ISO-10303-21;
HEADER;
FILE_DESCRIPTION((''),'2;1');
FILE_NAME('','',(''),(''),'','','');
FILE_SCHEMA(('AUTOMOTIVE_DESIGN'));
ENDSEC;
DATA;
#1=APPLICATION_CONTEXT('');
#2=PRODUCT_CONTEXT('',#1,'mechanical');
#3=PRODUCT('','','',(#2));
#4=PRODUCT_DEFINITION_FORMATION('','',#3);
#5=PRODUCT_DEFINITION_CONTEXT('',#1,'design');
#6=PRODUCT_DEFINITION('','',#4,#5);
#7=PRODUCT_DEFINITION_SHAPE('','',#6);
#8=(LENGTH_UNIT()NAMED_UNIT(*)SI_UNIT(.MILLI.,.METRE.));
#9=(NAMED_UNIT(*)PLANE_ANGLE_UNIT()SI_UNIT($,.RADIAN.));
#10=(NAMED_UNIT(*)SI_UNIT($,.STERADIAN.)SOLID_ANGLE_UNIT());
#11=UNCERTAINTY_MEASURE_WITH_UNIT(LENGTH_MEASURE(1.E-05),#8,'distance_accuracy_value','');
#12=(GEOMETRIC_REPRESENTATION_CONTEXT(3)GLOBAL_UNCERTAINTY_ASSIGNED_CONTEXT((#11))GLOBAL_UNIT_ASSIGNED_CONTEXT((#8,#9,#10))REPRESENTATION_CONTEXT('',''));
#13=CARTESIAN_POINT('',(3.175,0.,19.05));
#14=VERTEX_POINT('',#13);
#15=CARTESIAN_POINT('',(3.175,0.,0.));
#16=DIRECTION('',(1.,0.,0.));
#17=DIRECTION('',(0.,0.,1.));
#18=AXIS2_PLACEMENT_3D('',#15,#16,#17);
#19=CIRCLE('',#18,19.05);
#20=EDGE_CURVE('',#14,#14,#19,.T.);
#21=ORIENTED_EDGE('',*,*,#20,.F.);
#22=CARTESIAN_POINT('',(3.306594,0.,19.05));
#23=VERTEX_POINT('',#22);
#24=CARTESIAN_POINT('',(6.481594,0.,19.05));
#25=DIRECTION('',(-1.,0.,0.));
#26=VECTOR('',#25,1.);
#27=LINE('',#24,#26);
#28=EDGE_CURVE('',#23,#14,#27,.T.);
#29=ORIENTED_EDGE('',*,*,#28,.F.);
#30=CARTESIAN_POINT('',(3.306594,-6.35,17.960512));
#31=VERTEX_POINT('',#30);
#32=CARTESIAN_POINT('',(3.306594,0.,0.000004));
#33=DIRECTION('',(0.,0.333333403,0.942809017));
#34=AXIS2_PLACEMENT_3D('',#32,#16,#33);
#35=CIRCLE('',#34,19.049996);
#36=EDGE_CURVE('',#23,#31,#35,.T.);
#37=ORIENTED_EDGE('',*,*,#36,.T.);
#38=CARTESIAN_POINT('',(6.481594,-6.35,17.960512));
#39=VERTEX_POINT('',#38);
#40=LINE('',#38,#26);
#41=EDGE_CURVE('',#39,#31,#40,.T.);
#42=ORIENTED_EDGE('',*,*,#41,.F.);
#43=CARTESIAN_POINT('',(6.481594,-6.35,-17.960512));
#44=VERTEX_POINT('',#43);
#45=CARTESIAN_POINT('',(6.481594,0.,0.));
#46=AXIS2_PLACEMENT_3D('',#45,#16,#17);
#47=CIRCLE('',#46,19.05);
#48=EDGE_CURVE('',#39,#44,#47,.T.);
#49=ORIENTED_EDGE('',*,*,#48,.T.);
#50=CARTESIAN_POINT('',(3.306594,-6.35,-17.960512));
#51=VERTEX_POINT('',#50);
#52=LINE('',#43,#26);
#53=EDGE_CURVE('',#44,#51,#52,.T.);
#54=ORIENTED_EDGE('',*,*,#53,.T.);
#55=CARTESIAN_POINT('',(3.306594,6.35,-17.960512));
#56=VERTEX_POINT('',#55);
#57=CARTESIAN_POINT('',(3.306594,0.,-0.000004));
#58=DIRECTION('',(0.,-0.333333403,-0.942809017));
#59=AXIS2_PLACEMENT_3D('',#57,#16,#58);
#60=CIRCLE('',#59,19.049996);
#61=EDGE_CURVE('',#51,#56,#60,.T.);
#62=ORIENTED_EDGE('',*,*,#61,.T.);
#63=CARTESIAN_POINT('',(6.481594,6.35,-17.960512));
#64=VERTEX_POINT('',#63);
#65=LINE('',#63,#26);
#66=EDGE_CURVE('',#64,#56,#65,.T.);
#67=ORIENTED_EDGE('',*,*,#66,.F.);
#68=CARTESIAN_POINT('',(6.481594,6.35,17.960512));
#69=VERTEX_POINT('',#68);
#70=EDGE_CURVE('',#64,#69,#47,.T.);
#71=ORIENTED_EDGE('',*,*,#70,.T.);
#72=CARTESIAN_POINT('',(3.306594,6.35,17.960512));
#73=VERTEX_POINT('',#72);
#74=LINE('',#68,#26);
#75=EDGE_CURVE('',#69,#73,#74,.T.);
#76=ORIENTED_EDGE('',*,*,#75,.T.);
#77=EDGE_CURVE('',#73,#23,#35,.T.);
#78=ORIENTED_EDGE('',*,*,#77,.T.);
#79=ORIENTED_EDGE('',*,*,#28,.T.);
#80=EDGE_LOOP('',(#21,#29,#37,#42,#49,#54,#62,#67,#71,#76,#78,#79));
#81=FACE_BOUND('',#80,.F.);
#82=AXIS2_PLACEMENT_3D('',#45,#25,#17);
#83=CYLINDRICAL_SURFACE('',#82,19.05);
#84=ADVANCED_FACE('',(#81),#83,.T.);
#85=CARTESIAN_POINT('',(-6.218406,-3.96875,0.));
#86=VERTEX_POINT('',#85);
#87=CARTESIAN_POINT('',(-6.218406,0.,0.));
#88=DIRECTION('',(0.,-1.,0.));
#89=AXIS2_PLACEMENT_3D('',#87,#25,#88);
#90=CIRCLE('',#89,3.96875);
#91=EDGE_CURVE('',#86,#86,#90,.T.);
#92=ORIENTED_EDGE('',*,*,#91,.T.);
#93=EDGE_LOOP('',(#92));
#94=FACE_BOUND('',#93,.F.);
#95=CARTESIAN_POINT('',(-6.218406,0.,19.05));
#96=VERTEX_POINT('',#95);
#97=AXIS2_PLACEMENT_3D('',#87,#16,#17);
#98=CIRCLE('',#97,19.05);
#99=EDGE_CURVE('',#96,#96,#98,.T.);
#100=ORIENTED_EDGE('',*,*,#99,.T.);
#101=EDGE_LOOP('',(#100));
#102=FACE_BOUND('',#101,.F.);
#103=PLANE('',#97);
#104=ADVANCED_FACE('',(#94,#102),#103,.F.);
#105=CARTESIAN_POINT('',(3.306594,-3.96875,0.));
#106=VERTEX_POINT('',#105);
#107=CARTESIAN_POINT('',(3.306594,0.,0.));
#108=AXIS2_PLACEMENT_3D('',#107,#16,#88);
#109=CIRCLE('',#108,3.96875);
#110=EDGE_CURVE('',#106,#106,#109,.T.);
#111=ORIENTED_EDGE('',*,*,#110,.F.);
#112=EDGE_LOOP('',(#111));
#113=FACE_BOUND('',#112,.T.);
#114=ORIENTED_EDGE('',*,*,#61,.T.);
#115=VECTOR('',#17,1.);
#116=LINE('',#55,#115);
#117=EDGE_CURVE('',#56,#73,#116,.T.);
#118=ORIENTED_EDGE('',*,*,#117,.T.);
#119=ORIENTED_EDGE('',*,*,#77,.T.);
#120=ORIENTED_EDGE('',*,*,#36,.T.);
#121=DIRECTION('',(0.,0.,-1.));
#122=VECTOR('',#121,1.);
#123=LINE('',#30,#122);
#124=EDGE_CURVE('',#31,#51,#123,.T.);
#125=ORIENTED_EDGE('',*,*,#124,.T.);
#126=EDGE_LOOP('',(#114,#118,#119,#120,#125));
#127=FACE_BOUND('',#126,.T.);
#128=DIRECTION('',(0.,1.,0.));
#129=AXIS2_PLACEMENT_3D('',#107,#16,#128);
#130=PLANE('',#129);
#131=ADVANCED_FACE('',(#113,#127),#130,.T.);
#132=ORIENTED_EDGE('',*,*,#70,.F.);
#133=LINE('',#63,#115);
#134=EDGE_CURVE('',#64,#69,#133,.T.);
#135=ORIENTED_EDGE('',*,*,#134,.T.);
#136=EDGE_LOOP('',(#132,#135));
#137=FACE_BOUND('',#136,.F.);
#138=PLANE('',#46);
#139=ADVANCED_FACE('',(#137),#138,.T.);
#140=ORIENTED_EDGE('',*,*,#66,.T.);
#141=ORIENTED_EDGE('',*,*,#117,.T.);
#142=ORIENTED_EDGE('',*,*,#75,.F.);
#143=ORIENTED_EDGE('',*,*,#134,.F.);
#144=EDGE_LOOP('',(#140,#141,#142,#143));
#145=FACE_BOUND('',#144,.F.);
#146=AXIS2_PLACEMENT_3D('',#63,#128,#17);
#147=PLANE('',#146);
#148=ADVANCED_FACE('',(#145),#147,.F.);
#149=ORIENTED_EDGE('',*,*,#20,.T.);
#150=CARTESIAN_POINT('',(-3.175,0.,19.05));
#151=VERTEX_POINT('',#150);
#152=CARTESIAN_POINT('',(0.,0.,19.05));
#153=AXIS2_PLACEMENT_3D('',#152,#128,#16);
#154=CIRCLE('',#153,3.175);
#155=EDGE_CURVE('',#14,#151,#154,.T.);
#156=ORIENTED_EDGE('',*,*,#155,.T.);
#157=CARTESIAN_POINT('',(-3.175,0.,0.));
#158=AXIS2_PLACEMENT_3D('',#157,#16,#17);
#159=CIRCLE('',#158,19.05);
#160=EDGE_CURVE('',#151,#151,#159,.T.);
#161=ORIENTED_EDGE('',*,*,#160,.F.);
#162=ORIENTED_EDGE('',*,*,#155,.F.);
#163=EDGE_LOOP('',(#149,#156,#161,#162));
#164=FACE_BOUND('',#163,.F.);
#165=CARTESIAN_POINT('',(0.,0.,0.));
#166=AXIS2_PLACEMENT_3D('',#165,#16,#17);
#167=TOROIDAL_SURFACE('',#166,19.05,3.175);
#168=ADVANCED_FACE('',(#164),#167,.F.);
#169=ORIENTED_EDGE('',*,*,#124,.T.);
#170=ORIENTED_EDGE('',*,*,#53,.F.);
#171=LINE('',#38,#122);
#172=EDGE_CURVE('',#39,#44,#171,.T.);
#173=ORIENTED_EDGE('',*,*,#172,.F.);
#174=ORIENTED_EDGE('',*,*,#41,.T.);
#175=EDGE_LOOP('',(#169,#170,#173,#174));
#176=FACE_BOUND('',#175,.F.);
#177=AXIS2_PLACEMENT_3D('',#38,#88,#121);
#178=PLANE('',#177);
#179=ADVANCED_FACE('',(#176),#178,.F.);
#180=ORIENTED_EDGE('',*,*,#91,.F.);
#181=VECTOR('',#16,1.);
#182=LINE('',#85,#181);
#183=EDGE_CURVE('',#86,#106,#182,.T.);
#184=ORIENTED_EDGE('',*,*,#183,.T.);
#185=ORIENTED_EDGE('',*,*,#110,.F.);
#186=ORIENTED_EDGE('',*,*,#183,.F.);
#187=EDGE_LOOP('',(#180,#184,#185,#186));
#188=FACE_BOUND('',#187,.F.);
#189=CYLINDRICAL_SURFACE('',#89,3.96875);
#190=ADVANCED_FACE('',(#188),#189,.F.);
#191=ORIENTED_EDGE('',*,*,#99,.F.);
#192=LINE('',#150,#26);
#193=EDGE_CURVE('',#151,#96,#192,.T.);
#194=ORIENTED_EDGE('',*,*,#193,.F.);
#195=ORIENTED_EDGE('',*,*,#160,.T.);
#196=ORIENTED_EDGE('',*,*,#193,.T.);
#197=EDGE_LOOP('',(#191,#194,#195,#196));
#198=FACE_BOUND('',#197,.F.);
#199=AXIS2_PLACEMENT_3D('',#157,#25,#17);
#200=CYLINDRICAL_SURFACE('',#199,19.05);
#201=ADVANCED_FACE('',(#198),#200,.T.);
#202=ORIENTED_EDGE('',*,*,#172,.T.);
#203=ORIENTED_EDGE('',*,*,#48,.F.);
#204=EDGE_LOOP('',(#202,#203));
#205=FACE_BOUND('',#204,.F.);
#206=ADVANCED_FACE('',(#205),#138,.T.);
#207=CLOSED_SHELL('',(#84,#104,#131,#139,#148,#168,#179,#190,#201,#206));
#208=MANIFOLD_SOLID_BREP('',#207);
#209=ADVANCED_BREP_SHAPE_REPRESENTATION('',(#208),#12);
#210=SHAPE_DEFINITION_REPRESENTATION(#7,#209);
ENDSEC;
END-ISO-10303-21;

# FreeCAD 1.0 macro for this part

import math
import FreeCAD as App
import Part
import Sketcher
from FreeCAD import Vector
Q = App.Units.Quantity

doc = App.newDocument("Part")
body = doc.addObject("PartDesign::Body", "Body")

# Sketch on XZ plane
sketch1 = body.newObject("Sketcher::SketchObject", "Sketch")
sketch1.AttachmentSupport = (doc.getObject("XZ_Plane"), [""])
sketch1.MapMode = "FlatFace"
sketch1.addGeometry([
    Part.LineSegment(Vector(-6.2, 19.1, 0), Vector(-6.2, 0, 0)),  # 0
    Part.LineSegment(Vector(-6.2, 0, 0), Vector(6.5, 0, 0)),  # 1
    Part.LineSegment(Vector(6.5, 0, 0), Vector(6.5, 19.1, 0)),  # 2
    Part.LineSegment(Vector(6.5, 19.1, 0), Vector(3.2, 19.1, 0)),  # 3
    Part.ArcOfCircle(Part.Circle(Vector(0, 19.1, 0), Vector(0, 0, 1), 3.2), math.radians(180), math.radians(360)),  # 4
    Part.LineSegment(Vector(-3.2, 19.1, 0), Vector(-6.2, 19.1, 0)),  # 5
], False)
sketch1.addConstraint([
    Sketcher.Constraint("Coincident", 0, 2, 1, 1),
    Sketcher.Constraint("Coincident", 1, 2, 2, 1),
    Sketcher.Constraint("Coincident", 2, 2, 3, 1),
    Sketcher.Constraint("Coincident", 3, 2, 4, 2),
    Sketcher.Constraint("Coincident", 4, 1, 5, 1),
    Sketcher.Constraint("Coincident", 5, 2, 0, 1),
    Sketcher.Constraint("Vertical", 0),
    Sketcher.Constraint("Horizontal", 1),
    Sketcher.Constraint("Vertical", 2),
    Sketcher.Constraint("Horizontal", 3),
    Sketcher.Constraint("Horizontal", 5),
    Sketcher.Constraint("Symmetric", 3, 2, 4, 1, -2),
    Sketcher.Constraint("PointOnObject", 0, 2, -1),
    Sketcher.Constraint("Horizontal", 4, 3, 2, 2),
    Sketcher.Constraint("DistanceX", 1, 1, 1, 2, Q("0.5 in")),
    Sketcher.Constraint("Radius", 4, Q("0.125 in")),
    Sketcher.Constraint("DistanceY", 0, 2, 0, 1, Q("0.75 in")),
    Sketcher.Constraint("DistanceX", 3, 2, 3, 1, Q("3.306594 mm")),
])
revolution = body.newObject("PartDesign::Revolution", "Revolution")
revolution.Profile = sketch1
revolution.ReferenceAxis = (sketch1, ["H_Axis"])
revolution.Angle = 360

# Sketch on YZ plane
sketch2 = body.newObject("Sketcher::SketchObject", "Sketch001")
sketch2.AttachmentSupport = (doc.getObject("YZ_Plane"), [""])
sketch2.MapMode = "FlatFace"
sketch2.AttachmentOffset = App.Placement(Vector(0, 0, 6.481594), App.Rotation())
sketch2.addGeometry([
    Part.ArcOfCircle(Part.Circle(Vector(0, 0, 0), Vector(0, 0, 1), 19), math.radians(71), math.radians(109)),  # 0
    Part.LineSegment(Vector(-6.3, 18, 0), Vector(-6.3, -18, 0)),  # 1
    Part.ArcOfCircle(Part.Circle(Vector(0, 0, 0), Vector(0, 0, 1), 19), math.radians(-109), math.radians(-71)),  # 2
    Part.LineSegment(Vector(6.3, -18, 0), Vector(6.3, 18, 0)),  # 3
    Part.Circle(Vector(0, 0, 0), Vector(0, 0, 1), 4),  # 4
], False)
sketch2.addConstraint([
    Sketcher.Constraint("Coincident", 0, 2, 1, 1),
    Sketcher.Constraint("Coincident", 1, 2, 2, 1),
    Sketcher.Constraint("Coincident", 2, 2, 3, 1),
    Sketcher.Constraint("Coincident", 3, 2, 0, 1),
    Sketcher.Constraint("Vertical", 1),
    Sketcher.Constraint("Vertical", 3),
    Sketcher.Constraint("Coincident", 0, 3, -1, 1),
    Sketcher.Constraint("Coincident", 2, 3, -1, 1),
    Sketcher.Constraint("Coincident", 4, 3, -1, 1),
    Sketcher.Constraint("Equal", 0, 2),
    Sketcher.Constraint("Horizontal", 1, 2, 2, 2),
    Sketcher.Constraint("Radius", 0, Q("0.7499998 in")),
    Sketcher.Constraint("Diameter", 4, Q("0.3125 in")),
    Sketcher.Constraint("DistanceX", 1, 2, 2, 2, Q("0.5 in")),
])
pocket1 = body.newObject("PartDesign::Pocket", "Pocket")
pocket1.Profile = sketch2
pocket1.Length = Q("0.125 in")

# Sketch on YZ plane
sketch3 = body.newObject("Sketcher::SketchObject", "Sketch002")
sketch3.AttachmentSupport = (doc.getObject("YZ_Plane"), [""])
sketch3.MapMode = "FlatFace"
sketch3.AttachmentOffset = App.Placement(Vector(0, 0, -6.218406), App.Rotation())
sketch3.addGeometry(Part.Circle(Vector(0, 0, 0), Vector(0, 0, 1), 4), False)
sketch3.addConstraint([
    Sketcher.Constraint("Coincident", 0, 3, -1, 1),
    Sketcher.Constraint("Diameter", 0, Q("0.3125 in")),
])
pocket2 = body.newObject("PartDesign::Pocket", "Pocket001")
pocket2.Profile = sketch3
pocket2.Type = "ThroughAll"
pocket2.Reversed = True

doc.recompute()
